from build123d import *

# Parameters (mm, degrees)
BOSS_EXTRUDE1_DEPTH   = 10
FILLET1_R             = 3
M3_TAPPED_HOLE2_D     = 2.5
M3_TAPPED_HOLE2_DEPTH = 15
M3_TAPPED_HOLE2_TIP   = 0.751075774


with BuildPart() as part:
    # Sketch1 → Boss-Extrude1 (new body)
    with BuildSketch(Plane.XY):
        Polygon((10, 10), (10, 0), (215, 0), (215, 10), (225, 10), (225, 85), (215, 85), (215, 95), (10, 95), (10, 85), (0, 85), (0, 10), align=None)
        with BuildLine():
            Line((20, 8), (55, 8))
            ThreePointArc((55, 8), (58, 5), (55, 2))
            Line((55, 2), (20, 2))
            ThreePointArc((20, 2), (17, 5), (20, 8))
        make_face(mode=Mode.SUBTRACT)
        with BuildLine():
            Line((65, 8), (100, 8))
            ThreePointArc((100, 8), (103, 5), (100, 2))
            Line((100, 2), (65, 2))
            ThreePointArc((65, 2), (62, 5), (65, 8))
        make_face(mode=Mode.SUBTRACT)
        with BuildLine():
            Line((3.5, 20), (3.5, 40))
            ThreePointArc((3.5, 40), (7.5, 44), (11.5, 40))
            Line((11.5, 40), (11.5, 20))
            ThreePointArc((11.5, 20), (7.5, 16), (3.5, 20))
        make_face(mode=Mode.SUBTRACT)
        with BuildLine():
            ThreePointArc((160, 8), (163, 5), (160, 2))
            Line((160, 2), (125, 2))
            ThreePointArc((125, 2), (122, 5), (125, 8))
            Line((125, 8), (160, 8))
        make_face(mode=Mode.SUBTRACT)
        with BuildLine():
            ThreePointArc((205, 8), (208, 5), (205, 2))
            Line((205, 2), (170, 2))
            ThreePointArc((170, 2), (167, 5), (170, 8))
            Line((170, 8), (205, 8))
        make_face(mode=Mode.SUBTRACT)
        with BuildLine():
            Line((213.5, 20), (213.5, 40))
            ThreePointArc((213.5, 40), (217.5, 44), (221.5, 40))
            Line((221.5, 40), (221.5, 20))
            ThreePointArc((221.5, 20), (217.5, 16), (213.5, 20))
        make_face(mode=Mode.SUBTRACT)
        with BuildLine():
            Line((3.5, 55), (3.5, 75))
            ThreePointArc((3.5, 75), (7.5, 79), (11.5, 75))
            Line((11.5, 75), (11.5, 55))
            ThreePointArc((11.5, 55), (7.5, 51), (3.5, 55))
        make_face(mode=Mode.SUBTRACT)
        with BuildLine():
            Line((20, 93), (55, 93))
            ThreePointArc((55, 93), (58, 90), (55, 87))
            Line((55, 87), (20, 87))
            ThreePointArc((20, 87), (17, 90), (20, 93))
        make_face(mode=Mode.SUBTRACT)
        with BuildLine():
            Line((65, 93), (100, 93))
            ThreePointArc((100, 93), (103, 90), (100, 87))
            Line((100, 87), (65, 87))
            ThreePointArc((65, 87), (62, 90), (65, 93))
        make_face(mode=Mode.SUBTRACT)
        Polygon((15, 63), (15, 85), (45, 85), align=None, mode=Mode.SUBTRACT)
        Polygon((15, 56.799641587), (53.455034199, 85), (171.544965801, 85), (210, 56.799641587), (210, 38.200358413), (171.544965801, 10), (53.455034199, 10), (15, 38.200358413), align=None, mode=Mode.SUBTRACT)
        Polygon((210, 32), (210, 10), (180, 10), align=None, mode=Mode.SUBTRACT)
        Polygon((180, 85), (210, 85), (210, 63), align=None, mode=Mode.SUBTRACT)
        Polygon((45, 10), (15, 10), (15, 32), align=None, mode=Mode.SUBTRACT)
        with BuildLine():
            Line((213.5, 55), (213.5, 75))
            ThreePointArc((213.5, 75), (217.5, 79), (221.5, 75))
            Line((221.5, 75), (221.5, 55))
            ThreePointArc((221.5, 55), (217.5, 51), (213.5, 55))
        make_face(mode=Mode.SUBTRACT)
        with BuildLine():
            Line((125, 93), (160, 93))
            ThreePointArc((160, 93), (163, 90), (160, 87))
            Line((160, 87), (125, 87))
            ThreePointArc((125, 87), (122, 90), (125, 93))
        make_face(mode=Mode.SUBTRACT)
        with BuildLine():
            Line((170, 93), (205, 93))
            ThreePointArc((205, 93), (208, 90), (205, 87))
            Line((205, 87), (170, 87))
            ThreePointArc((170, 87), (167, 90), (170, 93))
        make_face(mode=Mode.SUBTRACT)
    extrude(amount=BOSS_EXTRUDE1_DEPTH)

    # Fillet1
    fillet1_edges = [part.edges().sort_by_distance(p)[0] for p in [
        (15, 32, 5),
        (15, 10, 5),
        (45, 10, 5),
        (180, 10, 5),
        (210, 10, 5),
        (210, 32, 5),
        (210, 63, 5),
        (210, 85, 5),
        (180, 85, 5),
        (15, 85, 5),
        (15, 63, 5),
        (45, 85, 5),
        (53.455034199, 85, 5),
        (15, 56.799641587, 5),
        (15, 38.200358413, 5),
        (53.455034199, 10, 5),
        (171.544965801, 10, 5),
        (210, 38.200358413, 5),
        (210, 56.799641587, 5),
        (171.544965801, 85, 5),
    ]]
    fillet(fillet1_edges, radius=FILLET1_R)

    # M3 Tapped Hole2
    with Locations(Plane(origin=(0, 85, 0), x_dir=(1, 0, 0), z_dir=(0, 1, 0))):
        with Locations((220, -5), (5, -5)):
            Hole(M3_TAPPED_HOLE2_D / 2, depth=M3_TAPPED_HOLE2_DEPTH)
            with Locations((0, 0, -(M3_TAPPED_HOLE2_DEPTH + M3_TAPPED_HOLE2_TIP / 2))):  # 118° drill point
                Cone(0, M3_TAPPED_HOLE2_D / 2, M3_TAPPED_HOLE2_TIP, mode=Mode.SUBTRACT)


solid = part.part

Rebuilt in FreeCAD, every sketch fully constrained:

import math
import FreeCAD as App
import Part
import Sketcher

V = App.Vector


def edges_at(feature, points):
    """Names of the edges that pass closest to the given points."""
    edges = feature.Shape.Edges
    near = lambda p: min(range(len(edges)), key=lambda i: edges[i].distToShape(Part.Vertex(*p))[0])
    return sorted({f"Edge{near(p) + 1}" for p in points})

doc = App.newDocument("Part")
body = doc.addObject("PartDesign::Body", "Body")

# Sketch on XY plane
sketch1 = body.newObject("Sketcher::SketchObject", "Sketch")
sketch1.AttachmentSupport = (doc.getObject("XY_Plane"), [""])
sketch1.MapMode = "FlatFace"
sketch1.addGeometry([
    Part.LineSegment(V(10, 10, 0), V(10, 0, 0)),  # 0
    Part.LineSegment(V(10, 0, 0), V(215, 0, 0)),  # 1
    Part.LineSegment(V(215, 0, 0), V(215, 10, 0)),  # 2
    Part.LineSegment(V(215, 10, 0), V(225, 10, 0)),  # 3
    Part.LineSegment(V(225, 10, 0), V(225, 85, 0)),  # 4
    Part.LineSegment(V(225, 85, 0), V(215, 85, 0)),  # 5
    Part.LineSegment(V(215, 85, 0), V(215, 95, 0)),  # 6
    Part.LineSegment(V(215, 95, 0), V(10, 95, 0)),  # 7
    Part.LineSegment(V(10, 95, 0), V(10, 85, 0)),  # 8
    Part.LineSegment(V(10, 85, 0), V(0, 85, 0)),  # 9
    Part.LineSegment(V(0, 85, 0), V(0, 10, 0)),  # 10
    Part.LineSegment(V(0, 10, 0), V(10, 10, 0)),  # 11
    Part.ArcOfCircle(Part.Circle(V(20, 5, 0), V(0, 0, 1), 3), math.radians(90), math.radians(270)),  # 12
    Part.LineSegment(V(20, 8, 0), V(55, 8, 0)),  # 13
    Part.ArcOfCircle(Part.Circle(V(55, 5, 0), V(0, 0, 1), 3), math.radians(-90), math.radians(90)),  # 14
    Part.LineSegment(V(55, 2, 0), V(20, 2, 0)),  # 15
    Part.LineSegment(V(15, 32, 0), V(45, 10, 0)),  # 16
    Part.LineSegment(V(45, 10, 0), V(15, 10, 0)),  # 17
    Part.LineSegment(V(15, 10, 0), V(15, 32, 0)),  # 18
    Part.ArcOfCircle(Part.Circle(V(65, 5, 0), V(0, 0, 1), 3), math.radians(90), math.radians(270)),  # 19
    Part.LineSegment(V(65, 8, 0), V(100, 8, 0)),  # 20
    Part.ArcOfCircle(Part.Circle(V(100, 5, 0), V(0, 0, 1), 3), math.radians(-90), math.radians(90)),  # 21
    Part.LineSegment(V(100, 2, 0), V(65, 2, 0)),  # 22
    Part.ArcOfCircle(Part.Circle(V(7.5, 20, 0), V(0, 0, 1), 4), math.radians(180), math.radians(360)),  # 23
    Part.LineSegment(V(3.5, 20, 0), V(3.5, 40, 0)),  # 24
    Part.ArcOfCircle(Part.Circle(V(7.5, 40, 0), V(0, 0, 1), 4), math.radians(0), math.radians(180)),  # 25
    Part.LineSegment(V(11.5, 40, 0), V(11.5, 20, 0)),  # 26
    Part.LineSegment(V(125, 8, 0), V(160, 8, 0)),  # 27
    Part.ArcOfCircle(Part.Circle(V(160, 5, 0), V(0, 0, 1), 3), math.radians(-90), math.radians(90)),  # 28
    Part.LineSegment(V(160, 2, 0), V(125, 2, 0)),  # 29
    Part.ArcOfCircle(Part.Circle(V(125, 5, 0), V(0, 0, 1), 3), math.radians(90), math.radians(270)),  # 30
    Part.LineSegment(V(170, 8, 0), V(205, 8, 0)),  # 31
    Part.ArcOfCircle(Part.Circle(V(205, 5, 0), V(0, 0, 1), 3), math.radians(-90), math.radians(90)),  # 32
    Part.LineSegment(V(205, 2, 0), V(170, 2, 0)),  # 33
    Part.ArcOfCircle(Part.Circle(V(170, 5, 0), V(0, 0, 1), 3), math.radians(90), math.radians(270)),  # 34
    Part.LineSegment(V(180, 10, 0), V(210, 32, 0)),  # 35
    Part.LineSegment(V(210, 32, 0), V(210, 10, 0)),  # 36
    Part.LineSegment(V(210, 10, 0), V(180, 10, 0)),  # 37
    Part.ArcOfCircle(Part.Circle(V(217.5, 20, 0), V(0, 0, 1), 4), math.radians(180), math.radians(360)),  # 38
    Part.LineSegment(V(213.5, 20, 0), V(213.5, 40, 0)),  # 39
    Part.ArcOfCircle(Part.Circle(V(217.5, 40, 0), V(0, 0, 1), 4), math.radians(0), math.radians(180)),  # 40
    Part.LineSegment(V(221.5, 40, 0), V(221.5, 20, 0)),  # 41
    Part.ArcOfCircle(Part.Circle(V(7.5, 55, 0), V(0, 0, 1), 4), math.radians(180), math.radians(360)),  # 42
    Part.LineSegment(V(3.5, 55, 0), V(3.5, 75, 0)),  # 43
    Part.ArcOfCircle(Part.Circle(V(7.5, 75, 0), V(0, 0, 1), 4), math.radians(0), math.radians(180)),  # 44
    Part.LineSegment(V(11.5, 75, 0), V(11.5, 55, 0)),  # 45
    Part.LineSegment(V(45, 85, 0), V(15, 63, 0)),  # 46
    Part.LineSegment(V(15, 63, 0), V(15, 85, 0)),  # 47
    Part.LineSegment(V(15, 85, 0), V(45, 85, 0)),  # 48
    Part.ArcOfCircle(Part.Circle(V(20, 90, 0), V(0, 0, 1), 3), math.radians(90), math.radians(270)),  # 49
    Part.LineSegment(V(20, 93, 0), V(55, 93, 0)),  # 50
    Part.ArcOfCircle(Part.Circle(V(55, 90, 0), V(0, 0, 1), 3), math.radians(-90), math.radians(90)),  # 51
    Part.LineSegment(V(55, 87, 0), V(20, 87, 0)),  # 52
    Part.ArcOfCircle(Part.Circle(V(65, 90, 0), V(0, 0, 1), 3), math.radians(90), math.radians(270)),  # 53
    Part.LineSegment(V(65, 93, 0), V(100, 93, 0)),  # 54
    Part.ArcOfCircle(Part.Circle(V(100, 90, 0), V(0, 0, 1), 3), math.radians(-90), math.radians(90)),  # 55
    Part.LineSegment(V(100, 87, 0), V(65, 87, 0)),  # 56
    Part.LineSegment(V(15, 38.2, 0), V(15, 56.8, 0)),  # 57
    Part.LineSegment(V(15, 56.8, 0), V(53.5, 85, 0)),  # 58
    Part.LineSegment(V(53.5, 85, 0), V(171.5, 85, 0)),  # 59
    Part.LineSegment(V(171.5, 85, 0), V(210, 56.8, 0)),  # 60
    Part.LineSegment(V(210, 56.8, 0), V(210, 38.2, 0)),  # 61
    Part.LineSegment(V(210, 38.2, 0), V(171.5, 10, 0)),  # 62
    Part.LineSegment(V(171.5, 10, 0), V(53.5, 10, 0)),  # 63
    Part.LineSegment(V(53.5, 10, 0), V(15, 38.2, 0)),  # 64
    Part.ArcOfCircle(Part.Circle(V(217.5, 55, 0), V(0, 0, 1), 4), math.radians(180), math.radians(360)),  # 65
    Part.LineSegment(V(213.5, 55, 0), V(213.5, 75, 0)),  # 66
    Part.ArcOfCircle(Part.Circle(V(217.5, 75, 0), V(0, 0, 1), 4), math.radians(0), math.radians(180)),  # 67
    Part.LineSegment(V(221.5, 75, 0), V(221.5, 55, 0)),  # 68
    Part.ArcOfCircle(Part.Circle(V(125, 90, 0), V(0, 0, 1), 3), math.radians(90), math.radians(270)),  # 69
    Part.LineSegment(V(125, 93, 0), V(160, 93, 0)),  # 70
    Part.ArcOfCircle(Part.Circle(V(160, 90, 0), V(0, 0, 1), 3), math.radians(-90), math.radians(90)),  # 71
    Part.LineSegment(V(160, 87, 0), V(125, 87, 0)),  # 72
    Part.LineSegment(V(210, 63, 0), V(180, 85, 0)),  # 73
    Part.LineSegment(V(180, 85, 0), V(210, 85, 0)),  # 74
    Part.LineSegment(V(210, 85, 0), V(210, 63, 0)),  # 75
    Part.ArcOfCircle(Part.Circle(V(170, 90, 0), V(0, 0, 1), 3), math.radians(90), math.radians(270)),  # 76
    Part.LineSegment(V(170, 93, 0), V(205, 93, 0)),  # 77
    Part.ArcOfCircle(Part.Circle(V(205, 90, 0), V(0, 0, 1), 3), math.radians(-90), math.radians(90)),  # 78
    Part.LineSegment(V(205, 87, 0), V(170, 87, 0)),  # 79
], False)
sketch1.addConstraint([
    Sketcher.Constraint("Coincident", 0, 2, 1, 1),
    Sketcher.Constraint("Coincident", 1, 2, 2, 1),
    Sketcher.Constraint("Coincident", 2, 2, 3, 1),
    Sketcher.Constraint("Coincident", 3, 2, 4, 1),
    Sketcher.Constraint("Coincident", 4, 2, 5, 1),
    Sketcher.Constraint("Coincident", 5, 2, 6, 1),
    Sketcher.Constraint("Coincident", 6, 2, 7, 1),
    Sketcher.Constraint("Coincident", 7, 2, 8, 1),
    Sketcher.Constraint("Coincident", 8, 2, 9, 1),
    Sketcher.Constraint("Coincident", 9, 2, 10, 1),
    Sketcher.Constraint("Coincident", 10, 2, 11, 1),
    Sketcher.Constraint("Coincident", 11, 2, 0, 1),
    Sketcher.Constraint("Tangent", 12, 1, 13, 1),
    Sketcher.Constraint("Tangent", 13, 2, 14, 2),
    Sketcher.Constraint("Tangent", 14, 1, 15, 1),
    Sketcher.Constraint("Tangent", 15, 2, 12, 2),
    Sketcher.Constraint("Coincident", 16, 2, 17, 1),
    Sketcher.Constraint("Coincident", 17, 2, 18, 1),
    Sketcher.Constraint("Coincident", 18, 2, 16, 1),
    Sketcher.Constraint("Tangent", 19, 1, 20, 1),
    Sketcher.Constraint("Tangent", 20, 2, 21, 2),
    Sketcher.Constraint("Tangent", 21, 1, 22, 1),
    Sketcher.Constraint("Tangent", 22, 2, 19, 2),
    Sketcher.Constraint("Tangent", 23, 1, 24, 1),
    Sketcher.Constraint("Tangent", 24, 2, 25, 2),
    Sketcher.Constraint("Tangent", 25, 1, 26, 1),
    Sketcher.Constraint("Tangent", 26, 2, 23, 2),
    Sketcher.Constraint("Tangent", 27, 2, 28, 2),
    Sketcher.Constraint("Tangent", 28, 1, 29, 1),
    Sketcher.Constraint("Tangent", 29, 2, 30, 2),
    Sketcher.Constraint("Tangent", 30, 1, 27, 1),
    Sketcher.Constraint("Tangent", 31, 2, 32, 2),
    Sketcher.Constraint("Tangent", 32, 1, 33, 1),
    Sketcher.Constraint("Tangent", 33, 2, 34, 2),
    Sketcher.Constraint("Tangent", 34, 1, 31, 1),
    Sketcher.Constraint("Coincident", 35, 2, 36, 1),
    Sketcher.Constraint("Coincident", 36, 2, 37, 1),
    Sketcher.Constraint("Coincident", 37, 2, 35, 1),
    Sketcher.Constraint("Tangent", 38, 1, 39, 1),
    Sketcher.Constraint("Tangent", 39, 2, 40, 2),
    Sketcher.Constraint("Tangent", 40, 1, 41, 1),
    Sketcher.Constraint("Tangent", 41, 2, 38, 2),
    Sketcher.Constraint("Tangent", 42, 1, 43, 1),
    Sketcher.Constraint("Tangent", 43, 2, 44, 2),
    Sketcher.Constraint("Tangent", 44, 1, 45, 1),
    Sketcher.Constraint("Tangent", 45, 2, 42, 2),
    Sketcher.Constraint("Coincident", 46, 2, 47, 1),
    Sketcher.Constraint("Coincident", 47, 2, 48, 1),
    Sketcher.Constraint("Coincident", 48, 2, 46, 1),
    Sketcher.Constraint("Tangent", 49, 1, 50, 1),
    Sketcher.Constraint("Tangent", 50, 2, 51, 2),
    Sketcher.Constraint("Tangent", 51, 1, 52, 1),
    Sketcher.Constraint("Tangent", 52, 2, 49, 2),
    Sketcher.Constraint("Tangent", 53, 1, 54, 1),
    Sketcher.Constraint("Tangent", 54, 2, 55, 2),
    Sketcher.Constraint("Tangent", 55, 1, 56, 1),
    Sketcher.Constraint("Tangent", 56, 2, 53, 2),
    Sketcher.Constraint("Coincident", 57, 2, 58, 1),
    Sketcher.Constraint("Coincident", 58, 2, 59, 1),
    Sketcher.Constraint("Coincident", 59, 2, 60, 1),
    Sketcher.Constraint("Coincident", 60, 2, 61, 1),
    Sketcher.Constraint("Coincident", 61, 2, 62, 1),
    Sketcher.Constraint("Coincident", 62, 2, 63, 1),
    Sketcher.Constraint("Coincident", 63, 2, 64, 1),
    Sketcher.Constraint("Coincident", 64, 2, 57, 1),
    Sketcher.Constraint("Tangent", 65, 1, 66, 1),
    Sketcher.Constraint("Tangent", 66, 2, 67, 2),
    Sketcher.Constraint("Tangent", 67, 1, 68, 1),
    Sketcher.Constraint("Tangent", 68, 2, 65, 2),
    Sketcher.Constraint("Tangent", 69, 1, 70, 1),
    Sketcher.Constraint("Tangent", 70, 2, 71, 2),
    Sketcher.Constraint("Tangent", 71, 1, 72, 1),
    Sketcher.Constraint("Tangent", 72, 2, 69, 2),
    Sketcher.Constraint("Coincident", 73, 2, 74, 1),
    Sketcher.Constraint("Coincident", 74, 2, 75, 1),
    Sketcher.Constraint("Coincident", 75, 2, 73, 1),
    Sketcher.Constraint("Tangent", 76, 1, 77, 1),
    Sketcher.Constraint("Tangent", 77, 2, 78, 2),
    Sketcher.Constraint("Tangent", 78, 1, 79, 1),
    Sketcher.Constraint("Tangent", 79, 2, 76, 2),
    Sketcher.Constraint("Vertical", 0),
    Sketcher.Constraint("Horizontal", 1),
    Sketcher.Constraint("Vertical", 2),
    Sketcher.Constraint("Horizontal", 3),
    Sketcher.Constraint("Vertical", 4),
    Sketcher.Constraint("Horizontal", 5),
    Sketcher.Constraint("Vertical", 6),
    Sketcher.Constraint("Horizontal", 7),
    Sketcher.Constraint("Vertical", 8),
    Sketcher.Constraint("Horizontal", 9),
    Sketcher.Constraint("Vertical", 10),
    Sketcher.Constraint("Horizontal", 11),
    Sketcher.Constraint("Horizontal", 13),
    Sketcher.Constraint("Horizontal", 15),
    Sketcher.Constraint("Horizontal", 17),
    Sketcher.Constraint("Vertical", 18),
    Sketcher.Constraint("Horizontal", 20),
    Sketcher.Constraint("Horizontal", 22),
    Sketcher.Constraint("Vertical", 24),
    Sketcher.Constraint("Vertical", 26),
    Sketcher.Constraint("Horizontal", 27),
    Sketcher.Constraint("Horizontal", 29),
    Sketcher.Constraint("Horizontal", 31),
    Sketcher.Constraint("Horizontal", 33),
    Sketcher.Constraint("Vertical", 36),
    Sketcher.Constraint("Horizontal", 37),
    Sketcher.Constraint("Vertical", 39),
    Sketcher.Constraint("Vertical", 41),
    Sketcher.Constraint("Vertical", 43),
    Sketcher.Constraint("Vertical", 45),
    Sketcher.Constraint("Vertical", 47),
    Sketcher.Constraint("Horizontal", 48),
    Sketcher.Constraint("Horizontal", 50),
    Sketcher.Constraint("Horizontal", 52),
    Sketcher.Constraint("Horizontal", 54),
    Sketcher.Constraint("Horizontal", 56),
    Sketcher.Constraint("Vertical", 57),
    Sketcher.Constraint("Horizontal", 59),
    Sketcher.Constraint("Vertical", 61),
    Sketcher.Constraint("Horizontal", 63),
    Sketcher.Constraint("Vertical", 66),
    Sketcher.Constraint("Vertical", 68),
    Sketcher.Constraint("Horizontal", 70),
    Sketcher.Constraint("Horizontal", 72),
    Sketcher.Constraint("Horizontal", 74),
    Sketcher.Constraint("Vertical", 75),
    Sketcher.Constraint("Horizontal", 77),
    Sketcher.Constraint("Horizontal", 79),
    Sketcher.Constraint("Equal", 14, 19),
    Sketcher.Constraint("Equal", 21, 28),
    Sketcher.Constraint("Equal", 30, 32),
    Sketcher.Constraint("Equal", 25, 38),
    Sketcher.Constraint("Equal", 40, 42),
    Sketcher.Constraint("Equal", 34, 49),
    Sketcher.Constraint("Equal", 51, 53),
    Sketcher.Constraint("Equal", 44, 65),
    Sketcher.Constraint("Equal", 55, 69),
    Sketcher.Constraint("Equal", 71, 76),
    Sketcher.Constraint("PointOnObject", 0, 2, -1),
    Sketcher.Constraint("PointOnObject", 9, 2, -2),
    Sketcher.Constraint("Parallel", 35, 46),
    Sketcher.Constraint("Parallel", 46, 58),
    Sketcher.Constraint("Parallel", 16, 60),
    Sketcher.Constraint("Parallel", 58, 62),
    Sketcher.Constraint("Parallel", 60, 64),
    Sketcher.Constraint("Parallel", 64, 73),
    Sketcher.Constraint("Horizontal", 14, 3, 19, 3),
    Sketcher.Constraint("Horizontal", 21, 3, 28, 3),
    Sketcher.Constraint("Horizontal", 30, 3, 32, 3),
    Sketcher.Constraint("Horizontal", 23, 3, 38, 3),
    Sketcher.Constraint("Horizontal", 25, 3, 40, 3),
    Sketcher.Constraint("Horizontal", 51, 3, 53, 3),
    Sketcher.Constraint("Horizontal", 42, 3, 65, 3),
    Sketcher.Constraint("Horizontal", 44, 3, 67, 3),
    Sketcher.Constraint("Horizontal", 55, 3, 69, 3),
    Sketcher.Constraint("Horizontal", 71, 3, 76, 3),
    Sketcher.Constraint("Horizontal", 5, 2, 8, 2),
    Sketcher.Constraint("Horizontal", 3, 2, 10, 2),
    Sketcher.Constraint("Horizontal", 11, 2, 16, 2),
    Sketcher.Constraint("Horizontal", 18, 2, 35, 2),
    Sketcher.Constraint("Horizontal", 17, 2, 36, 2),
    Sketcher.Constraint("Horizontal", 9, 2, 47, 2),
    Sketcher.Constraint("Horizontal", 48, 2, 58, 2),
    Sketcher.Constraint("Horizontal", 57, 2, 60, 2),
    Sketcher.Constraint("Horizontal", 37, 2, 62, 2),
    Sketcher.Constraint("Horizontal", 61, 2, 64, 2),
    Sketcher.Constraint("Horizontal", 59, 2, 73, 2),
    Sketcher.Constraint("Horizontal", 46, 2, 75, 2),
    Sketcher.Constraint("Vertical", 25, 3, 42, 3),
    Sketcher.Constraint("Vertical", 12, 3, 49, 3),
    Sketcher.Constraint("Vertical", 14, 3, 51, 3),
    Sketcher.Constraint("Vertical", 19, 3, 53, 3),
    Sketcher.Constraint("Vertical", 21, 3, 55, 3),
    Sketcher.Constraint("Vertical", 40, 3, 65, 3),
    Sketcher.Constraint("Vertical", 30, 3, 69, 3),
    Sketcher.Constraint("Vertical", 28, 3, 71, 3),
    Sketcher.Constraint("Vertical", 34, 3, 76, 3),
    Sketcher.Constraint("Vertical", 32, 3, 78, 3),
    Sketcher.Constraint("Vertical", 2, 2, 5, 2),
    Sketcher.Constraint("Vertical", 0, 2, 7, 2),
    Sketcher.Constraint("Vertical", 18, 2, 46, 2),
    Sketcher.Constraint("Vertical", 16, 2, 48, 2),
    Sketcher.Constraint("Vertical", 47, 2, 57, 2),
    Sketcher.Constraint("Vertical", 36, 2, 60, 2),
    Sketcher.Constraint("Vertical", 59, 2, 62, 2),
    Sketcher.Constraint("Vertical", 58, 2, 63, 2),
    Sketcher.Constraint("Vertical", 37, 2, 73, 2),
    Sketcher.Constraint("Equal", 5, 9),
    Sketcher.Constraint("Equal", 15, 20),
    Sketcher.Constraint("Equal", 22, 27),
    Sketcher.Constraint("Equal", 29, 31),
    Sketcher.Constraint("Equal", 11, 0),
    Sketcher.Constraint("Equal", 2, 6),
    Sketcher.Constraint("Equal", 41, 43),
    Sketcher.Constraint("Radius", 12, 3.0),
    Sketcher.Constraint("Radius", 23, 4.0),
    Sketcher.Constraint("DistanceX", 1, 1, 1, 2, 205.0),
    Sketcher.Constraint("DistanceX", 3, 1, 3, 2, 10.0),
    Sketcher.Constraint("DistanceX", 13, 1, 13, 2, 35.0),
    Sketcher.Constraint("DistanceX", 17, 2, 17, 1, 30.0),
    Sketcher.Constraint("DistanceY", 4, 1, 4, 2, 75.0),
    Sketcher.Constraint("DistanceY", 18, 1, 18, 2, 22.0),
    Sketcher.Constraint("DistanceY", 24, 1, 24, 2, 20.0),
    Sketcher.Constraint("DistanceX", -1, 1, 12, 3, 20.0),
    Sketcher.Constraint("DistanceY", -1, 1, 12, 3, 5.0),
    Sketcher.Constraint("DistanceX", -1, 1, 19, 3, 65.0),
    Sketcher.Constraint("DistanceY", -1, 1, 23, 3, 20.0),
    Sketcher.Constraint("DistanceX", -1, 1, 28, 3, 160.0),
    Sketcher.Constraint("DistanceX", -1, 1, 32, 3, 205.0),
    Sketcher.Constraint("DistanceY", -1, 1, 42, 3, 55.0),
    Sketcher.Constraint("DistanceY", -1, 1, 49, 3, 90.0),
    Sketcher.Constraint("DistanceX", -1, 1, 16, 2, 45.0),
    Sketcher.Constraint("DistanceX", -1, 1, 35, 2, 210.0),
    Sketcher.Constraint("DistanceX", -1, 1, 23, 3, 7.5),
    Sketcher.Constraint("DistanceX", -1, 1, 38, 3, 217.5),
    Sketcher.Constraint("Distance", 58, 47.686999),
])
pad1 = body.newObject("PartDesign::Pad", "Pad")
pad1.Profile = sketch1
pad1.Length = 10
doc.recompute()

fillet = body.newObject("PartDesign::Fillet", "Fillet")
fillet.Base = (pad1, edges_at(pad1, [
    (15, 32, 5),
    (15, 10, 5),
    (45, 10, 5),
    (180, 10, 5),
    (210, 10, 5),
    (210, 32, 5),
    (210, 63, 5),
    (210, 85, 5),
    (180, 85, 5),
    (15, 85, 5),
    (15, 63, 5),
    (45, 85, 5),
    (53.455, 85, 5),
    (15, 56.8, 5),
    (15, 38.2, 5),
    (53.455, 10, 5),
    (171.545, 10, 5),
    (210, 38.2, 5),
    (210, 56.8, 5),
    (171.545, 85, 5),
]))
fillet.Radius = 3

# Sketch on XZ plane
sketch2 = body.newObject("Sketcher::SketchObject", "Sketch001")
sketch2.AttachmentSupport = (doc.getObject("XZ_Plane"), [""])
sketch2.MapMode = "FlatFace"
sketch2.AttachmentOffset = App.Placement(V(0, 0, -85), App.Rotation())
sketch2.addGeometry([
    Part.Circle(V(220, 5, 0), V(0, 0, 1), 1.2),
    Part.Circle(V(5, 5, 0), V(0, 0, 1), 1.2),
], False)
sketch2.addConstraint([
    Sketcher.Constraint("Equal", 0, 1),
    Sketcher.Constraint("Horizontal", 0, 3, 1, 3),
    Sketcher.Constraint("Diameter", 0, 2.5),
    Sketcher.Constraint("DistanceX", -1, 1, 0, 3, 220.0),
    Sketcher.Constraint("DistanceY", -1, 1, 0, 3, 5.0),
    Sketcher.Constraint("DistanceX", -1, 1, 1, 3, 5.0),
])
doc.recompute()
hole = body.newObject("PartDesign::Hole", "Hole")
hole.Profile = sketch2
hole.ThreadType = "None"
hole.Diameter = 2.5
hole.DepthType = "Dimension"
hole.Depth = 15
hole.DrillPoint = "Angled"
hole.DrillPointAngle = 118
hole.Reversed = True

doc.recompute()
